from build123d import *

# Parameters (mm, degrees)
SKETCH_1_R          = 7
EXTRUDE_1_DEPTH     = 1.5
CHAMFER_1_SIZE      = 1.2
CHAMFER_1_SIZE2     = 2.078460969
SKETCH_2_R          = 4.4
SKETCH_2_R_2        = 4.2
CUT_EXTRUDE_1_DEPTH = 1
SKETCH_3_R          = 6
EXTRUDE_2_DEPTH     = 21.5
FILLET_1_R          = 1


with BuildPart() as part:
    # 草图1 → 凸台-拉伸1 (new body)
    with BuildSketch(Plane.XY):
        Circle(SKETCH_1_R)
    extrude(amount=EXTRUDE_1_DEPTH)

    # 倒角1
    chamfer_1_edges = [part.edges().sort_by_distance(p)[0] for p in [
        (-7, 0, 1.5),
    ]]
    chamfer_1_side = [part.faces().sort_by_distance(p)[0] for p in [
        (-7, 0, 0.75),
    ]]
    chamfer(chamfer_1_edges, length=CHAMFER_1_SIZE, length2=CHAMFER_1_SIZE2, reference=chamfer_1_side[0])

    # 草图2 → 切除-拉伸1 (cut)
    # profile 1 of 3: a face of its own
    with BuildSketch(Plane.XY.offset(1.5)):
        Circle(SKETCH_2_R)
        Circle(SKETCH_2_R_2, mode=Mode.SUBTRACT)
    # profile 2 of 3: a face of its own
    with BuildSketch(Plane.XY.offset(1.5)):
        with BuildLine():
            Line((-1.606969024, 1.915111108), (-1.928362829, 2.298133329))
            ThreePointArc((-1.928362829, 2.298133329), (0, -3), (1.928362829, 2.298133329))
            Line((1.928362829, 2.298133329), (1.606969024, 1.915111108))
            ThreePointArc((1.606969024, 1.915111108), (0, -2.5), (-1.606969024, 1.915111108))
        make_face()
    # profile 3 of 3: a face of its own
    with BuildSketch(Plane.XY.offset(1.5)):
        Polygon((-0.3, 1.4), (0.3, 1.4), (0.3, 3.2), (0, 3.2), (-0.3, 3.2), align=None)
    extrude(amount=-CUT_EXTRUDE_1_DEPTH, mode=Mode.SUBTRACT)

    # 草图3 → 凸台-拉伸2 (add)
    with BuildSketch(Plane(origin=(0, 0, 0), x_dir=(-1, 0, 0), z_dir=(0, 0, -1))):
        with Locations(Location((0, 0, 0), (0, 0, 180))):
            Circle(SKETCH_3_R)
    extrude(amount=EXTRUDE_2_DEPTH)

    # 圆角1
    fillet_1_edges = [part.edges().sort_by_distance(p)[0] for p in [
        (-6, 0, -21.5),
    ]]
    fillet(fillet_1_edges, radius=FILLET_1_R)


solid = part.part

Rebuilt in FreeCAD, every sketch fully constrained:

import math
import FreeCAD as App
import Part
import Sketcher
from FreeCAD import Vector
Q = App.Units.Quantity


def edges_at(feature, points):
    """Names of the edges that pass closest to the given points."""
    edges = feature.Shape.Edges
    near = lambda p: min(range(len(edges)), key=lambda i: edges[i].distToShape(Part.Vertex(*p))[0])
    return sorted({f"Edge{near(p) + 1}" for p in points})

doc = App.newDocument("Part")
params = doc.addObject("Spreadsheet::Sheet", "Params")
for row, (alias, value) in enumerate([
    ("sketch1_diameter", "14 mm"),
    ("pad1_length", "1.5 mm"),
    ("chamfer_size", "1.2 mm"),
    ("chamfer_size2", "2.078461 mm"),
    ("sketch2_radius", "3 mm"),
    ("sketch2_diameter", "8.8 mm"),
    ("sketch2_diameter2", "8.4 mm"),
    ("sketch2_radius2", "2.5 mm"),
    ("sketch2_width", "0.6 mm"),
    ("pocket1_length", "1 mm"),
    ("sketch3_diameter", "12 mm"),
    ("pad2_length", "21.5 mm"),
    ("fillet_radius", "1 mm"),
], start=1):
    params.set(f"A{row}", alias)
    params.set(f"B{row}", "=" + value)
    params.setAlias(f"B{row}", alias)

body = doc.addObject("PartDesign::Body", "Body")

# Sketch on XY plane
sketch1 = body.newObject("Sketcher::SketchObject", "Sketch")
sketch1.AttachmentSupport = (doc.getObject("XY_Plane"), [""])
sketch1.MapMode = "FlatFace"
sketch1.addGeometry(Part.Circle(Vector(0, 0, 0), Vector(0, 0, 1), 7), False)
sketch1.addConstraint(Sketcher.Constraint("Coincident", 0, 3, -1, 1))
sketch1.addConstraint(Sketcher.Constraint("Diameter", 0, 14.0))
sketch1.setExpression("Constraints[1]", "Params.sketch1_diameter")
pad1 = body.newObject("PartDesign::Pad", "Pad")
pad1.Profile = sketch1
pad1.setExpression("Length", "Params.pad1_length")
doc.recompute()

chamfer = body.newObject("PartDesign::Chamfer", "Chamfer")
chamfer.Base = (pad1, edges_at(pad1, [(-7, 0, 1.5)]))
chamfer.ChamferType = "Two distances"
chamfer.setExpression("Size", "Params.chamfer_size")
chamfer.setExpression("Size2", "Params.chamfer_size2")

# Sketch on XY plane
sketch2 = body.newObject("Sketcher::SketchObject", "Sketch001")
sketch2.AttachmentSupport = (doc.getObject("XY_Plane"), [""])
sketch2.MapMode = "FlatFace"
sketch2.AttachmentOffset = App.Placement(Vector(0, 0, 1.5), App.Rotation())
sketch2.addGeometry(Part.Circle(Vector(0, 0, 0), Vector(0, 0, 1), 4.4), False)
sketch2.addGeometry(Part.Circle(Vector(0, 0, 0), Vector(0, 0, 1), 4.2), False)
sketch2.addGeometry(Part.LineSegment(Vector(-1.61, 1.92, 0), Vector(-1.93, 2.3, 0)), False)
sketch2.addGeometry(Part.ArcOfCircle(Part.Circle(Vector(0, 0, 0), Vector(0, 0, 1), 3), math.radians(130), math.radians(410)), False)
sketch2.addGeometry(Part.LineSegment(Vector(1.93, 2.3, 0), Vector(1.61, 1.92, 0)), False)
sketch2.addGeometry(Part.ArcOfCircle(Part.Circle(Vector(0, 0, 0), Vector(0, 0, 1), 2.5), math.radians(130), math.radians(410)), False)
sketch2.addGeometry(Part.LineSegment(Vector(-0.3, 1.4, 0), Vector(0.3, 1.4, 0)), False)
sketch2.addGeometry(Part.LineSegment(Vector(0.3, 1.4, 0), Vector(0.3, 3.2, 0)), False)
sketch2.addGeometry(Part.LineSegment(Vector(0.3, 3.2, 0), Vector(-0.3, 3.2, 0)), False)
sketch2.addGeometry(Part.LineSegment(Vector(-0.3, 3.2, 0), Vector(-0.3, 1.4, 0)), False)
sketch2.addConstraint(Sketcher.Constraint("Coincident", 2, 2, 3, 1))
sketch2.addConstraint(Sketcher.Constraint("Coincident", 3, 2, 4, 1))
sketch2.addConstraint(Sketcher.Constraint("Coincident", 4, 2, 5, 2))
sketch2.addConstraint(Sketcher.Constraint("Coincident", 5, 1, 2, 1))
sketch2.addConstraint(Sketcher.Constraint("Coincident", 6, 2, 7, 1))
sketch2.addConstraint(Sketcher.Constraint("Coincident", 7, 2, 8, 1))
sketch2.addConstraint(Sketcher.Constraint("Coincident", 8, 2, 9, 1))
sketch2.addConstraint(Sketcher.Constraint("Coincident", 9, 2, 6, 1))
sketch2.addConstraint(Sketcher.Constraint("Horizontal", 6))
sketch2.addConstraint(Sketcher.Constraint("Vertical", 7))
sketch2.addConstraint(Sketcher.Constraint("Horizontal", 8))
sketch2.addConstraint(Sketcher.Constraint("Vertical", 9))
sketch2.addConstraint(Sketcher.Constraint("Coincident", 0, 3, -1, 1))
sketch2.addConstraint(Sketcher.Constraint("Coincident", 1, 3, -1, 1))
sketch2.addConstraint(Sketcher.Constraint("Coincident", 3, 3, -1, 1))
sketch2.addConstraint(Sketcher.Constraint("Coincident", 5, 3, -1, 1))
sketch2.addConstraint(Sketcher.Constraint("Horizontal", 2, 2, 3, 2))
sketch2.addConstraint(Sketcher.Constraint("Horizontal", 4, 2, 5, 1))
sketch2.addConstraint(Sketcher.Constraint("Radius", 3, 3.0))
sketch2.addConstraint(Sketcher.Constraint("Diameter", 0, 8.8))
sketch2.addConstraint(Sketcher.Constraint("Diameter", 1, 8.4))
sketch2.addConstraint(Sketcher.Constraint("Radius", 5, 2.5))
sketch2.addConstraint(Sketcher.Constraint("Angle", 2, Q("130 deg")))
sketch2.addConstraint(Sketcher.Constraint("DistanceX", 6, 1, 6, 2, 0.6))
sketch2.addConstraint(Sketcher.Constraint("DistanceY", 7, 1, 7, 2, 1.8))
sketch2.addConstraint(Sketcher.Constraint("DistanceX", -1, 1, 6, 2, 0.3))
sketch2.addConstraint(Sketcher.Constraint("DistanceY", -1, 1, 6, 2, 1.4))
sketch2.addConstraint(Sketcher.Constraint("DistanceX", -1, 1, 4, 2, 1.606969))
sketch2.setExpression("Constraints[18]", "Params.sketch2_radius")
sketch2.setExpression("Constraints[19]", "Params.sketch2_diameter")
sketch2.setExpression("Constraints[20]", "Params.sketch2_diameter2")
sketch2.setExpression("Constraints[21]", "Params.sketch2_radius2")
sketch2.setExpression("Constraints[23]", "Params.sketch2_width")
pocket1 = body.newObject("PartDesign::Pocket", "Pocket")
pocket1.Profile = sketch2
pocket1.setExpression("Length", "Params.pocket1_length")

# Sketch on XY plane
sketch3 = body.newObject("Sketcher::SketchObject", "Sketch002")
sketch3.AttachmentSupport = (doc.getObject("XY_Plane"), [""])
sketch3.MapMode = "FlatFace"
sketch3.addGeometry(Part.Circle(Vector(0, 0, 0), Vector(0, 0, 1), 6), False)
sketch3.addConstraint(Sketcher.Constraint("Coincident", 0, 3, -1, 1))
sketch3.addConstraint(Sketcher.Constraint("Diameter", 0, 12.0))
sketch3.setExpression("Constraints[1]", "Params.sketch3_diameter")
pad2 = body.newObject("PartDesign::Pad", "Pad001")
pad2.Profile = sketch3
pad2.setExpression("Length", "Params.pad2_length")
pad2.Reversed = True
doc.recompute()

fillet = body.newObject("PartDesign::Fillet", "Fillet")
fillet.Base = (pad2, edges_at(pad2, [(-6, 0, -21.5)]))
fillet.setExpression("Radius", "Params.fillet_radius")

doc.recompute()
